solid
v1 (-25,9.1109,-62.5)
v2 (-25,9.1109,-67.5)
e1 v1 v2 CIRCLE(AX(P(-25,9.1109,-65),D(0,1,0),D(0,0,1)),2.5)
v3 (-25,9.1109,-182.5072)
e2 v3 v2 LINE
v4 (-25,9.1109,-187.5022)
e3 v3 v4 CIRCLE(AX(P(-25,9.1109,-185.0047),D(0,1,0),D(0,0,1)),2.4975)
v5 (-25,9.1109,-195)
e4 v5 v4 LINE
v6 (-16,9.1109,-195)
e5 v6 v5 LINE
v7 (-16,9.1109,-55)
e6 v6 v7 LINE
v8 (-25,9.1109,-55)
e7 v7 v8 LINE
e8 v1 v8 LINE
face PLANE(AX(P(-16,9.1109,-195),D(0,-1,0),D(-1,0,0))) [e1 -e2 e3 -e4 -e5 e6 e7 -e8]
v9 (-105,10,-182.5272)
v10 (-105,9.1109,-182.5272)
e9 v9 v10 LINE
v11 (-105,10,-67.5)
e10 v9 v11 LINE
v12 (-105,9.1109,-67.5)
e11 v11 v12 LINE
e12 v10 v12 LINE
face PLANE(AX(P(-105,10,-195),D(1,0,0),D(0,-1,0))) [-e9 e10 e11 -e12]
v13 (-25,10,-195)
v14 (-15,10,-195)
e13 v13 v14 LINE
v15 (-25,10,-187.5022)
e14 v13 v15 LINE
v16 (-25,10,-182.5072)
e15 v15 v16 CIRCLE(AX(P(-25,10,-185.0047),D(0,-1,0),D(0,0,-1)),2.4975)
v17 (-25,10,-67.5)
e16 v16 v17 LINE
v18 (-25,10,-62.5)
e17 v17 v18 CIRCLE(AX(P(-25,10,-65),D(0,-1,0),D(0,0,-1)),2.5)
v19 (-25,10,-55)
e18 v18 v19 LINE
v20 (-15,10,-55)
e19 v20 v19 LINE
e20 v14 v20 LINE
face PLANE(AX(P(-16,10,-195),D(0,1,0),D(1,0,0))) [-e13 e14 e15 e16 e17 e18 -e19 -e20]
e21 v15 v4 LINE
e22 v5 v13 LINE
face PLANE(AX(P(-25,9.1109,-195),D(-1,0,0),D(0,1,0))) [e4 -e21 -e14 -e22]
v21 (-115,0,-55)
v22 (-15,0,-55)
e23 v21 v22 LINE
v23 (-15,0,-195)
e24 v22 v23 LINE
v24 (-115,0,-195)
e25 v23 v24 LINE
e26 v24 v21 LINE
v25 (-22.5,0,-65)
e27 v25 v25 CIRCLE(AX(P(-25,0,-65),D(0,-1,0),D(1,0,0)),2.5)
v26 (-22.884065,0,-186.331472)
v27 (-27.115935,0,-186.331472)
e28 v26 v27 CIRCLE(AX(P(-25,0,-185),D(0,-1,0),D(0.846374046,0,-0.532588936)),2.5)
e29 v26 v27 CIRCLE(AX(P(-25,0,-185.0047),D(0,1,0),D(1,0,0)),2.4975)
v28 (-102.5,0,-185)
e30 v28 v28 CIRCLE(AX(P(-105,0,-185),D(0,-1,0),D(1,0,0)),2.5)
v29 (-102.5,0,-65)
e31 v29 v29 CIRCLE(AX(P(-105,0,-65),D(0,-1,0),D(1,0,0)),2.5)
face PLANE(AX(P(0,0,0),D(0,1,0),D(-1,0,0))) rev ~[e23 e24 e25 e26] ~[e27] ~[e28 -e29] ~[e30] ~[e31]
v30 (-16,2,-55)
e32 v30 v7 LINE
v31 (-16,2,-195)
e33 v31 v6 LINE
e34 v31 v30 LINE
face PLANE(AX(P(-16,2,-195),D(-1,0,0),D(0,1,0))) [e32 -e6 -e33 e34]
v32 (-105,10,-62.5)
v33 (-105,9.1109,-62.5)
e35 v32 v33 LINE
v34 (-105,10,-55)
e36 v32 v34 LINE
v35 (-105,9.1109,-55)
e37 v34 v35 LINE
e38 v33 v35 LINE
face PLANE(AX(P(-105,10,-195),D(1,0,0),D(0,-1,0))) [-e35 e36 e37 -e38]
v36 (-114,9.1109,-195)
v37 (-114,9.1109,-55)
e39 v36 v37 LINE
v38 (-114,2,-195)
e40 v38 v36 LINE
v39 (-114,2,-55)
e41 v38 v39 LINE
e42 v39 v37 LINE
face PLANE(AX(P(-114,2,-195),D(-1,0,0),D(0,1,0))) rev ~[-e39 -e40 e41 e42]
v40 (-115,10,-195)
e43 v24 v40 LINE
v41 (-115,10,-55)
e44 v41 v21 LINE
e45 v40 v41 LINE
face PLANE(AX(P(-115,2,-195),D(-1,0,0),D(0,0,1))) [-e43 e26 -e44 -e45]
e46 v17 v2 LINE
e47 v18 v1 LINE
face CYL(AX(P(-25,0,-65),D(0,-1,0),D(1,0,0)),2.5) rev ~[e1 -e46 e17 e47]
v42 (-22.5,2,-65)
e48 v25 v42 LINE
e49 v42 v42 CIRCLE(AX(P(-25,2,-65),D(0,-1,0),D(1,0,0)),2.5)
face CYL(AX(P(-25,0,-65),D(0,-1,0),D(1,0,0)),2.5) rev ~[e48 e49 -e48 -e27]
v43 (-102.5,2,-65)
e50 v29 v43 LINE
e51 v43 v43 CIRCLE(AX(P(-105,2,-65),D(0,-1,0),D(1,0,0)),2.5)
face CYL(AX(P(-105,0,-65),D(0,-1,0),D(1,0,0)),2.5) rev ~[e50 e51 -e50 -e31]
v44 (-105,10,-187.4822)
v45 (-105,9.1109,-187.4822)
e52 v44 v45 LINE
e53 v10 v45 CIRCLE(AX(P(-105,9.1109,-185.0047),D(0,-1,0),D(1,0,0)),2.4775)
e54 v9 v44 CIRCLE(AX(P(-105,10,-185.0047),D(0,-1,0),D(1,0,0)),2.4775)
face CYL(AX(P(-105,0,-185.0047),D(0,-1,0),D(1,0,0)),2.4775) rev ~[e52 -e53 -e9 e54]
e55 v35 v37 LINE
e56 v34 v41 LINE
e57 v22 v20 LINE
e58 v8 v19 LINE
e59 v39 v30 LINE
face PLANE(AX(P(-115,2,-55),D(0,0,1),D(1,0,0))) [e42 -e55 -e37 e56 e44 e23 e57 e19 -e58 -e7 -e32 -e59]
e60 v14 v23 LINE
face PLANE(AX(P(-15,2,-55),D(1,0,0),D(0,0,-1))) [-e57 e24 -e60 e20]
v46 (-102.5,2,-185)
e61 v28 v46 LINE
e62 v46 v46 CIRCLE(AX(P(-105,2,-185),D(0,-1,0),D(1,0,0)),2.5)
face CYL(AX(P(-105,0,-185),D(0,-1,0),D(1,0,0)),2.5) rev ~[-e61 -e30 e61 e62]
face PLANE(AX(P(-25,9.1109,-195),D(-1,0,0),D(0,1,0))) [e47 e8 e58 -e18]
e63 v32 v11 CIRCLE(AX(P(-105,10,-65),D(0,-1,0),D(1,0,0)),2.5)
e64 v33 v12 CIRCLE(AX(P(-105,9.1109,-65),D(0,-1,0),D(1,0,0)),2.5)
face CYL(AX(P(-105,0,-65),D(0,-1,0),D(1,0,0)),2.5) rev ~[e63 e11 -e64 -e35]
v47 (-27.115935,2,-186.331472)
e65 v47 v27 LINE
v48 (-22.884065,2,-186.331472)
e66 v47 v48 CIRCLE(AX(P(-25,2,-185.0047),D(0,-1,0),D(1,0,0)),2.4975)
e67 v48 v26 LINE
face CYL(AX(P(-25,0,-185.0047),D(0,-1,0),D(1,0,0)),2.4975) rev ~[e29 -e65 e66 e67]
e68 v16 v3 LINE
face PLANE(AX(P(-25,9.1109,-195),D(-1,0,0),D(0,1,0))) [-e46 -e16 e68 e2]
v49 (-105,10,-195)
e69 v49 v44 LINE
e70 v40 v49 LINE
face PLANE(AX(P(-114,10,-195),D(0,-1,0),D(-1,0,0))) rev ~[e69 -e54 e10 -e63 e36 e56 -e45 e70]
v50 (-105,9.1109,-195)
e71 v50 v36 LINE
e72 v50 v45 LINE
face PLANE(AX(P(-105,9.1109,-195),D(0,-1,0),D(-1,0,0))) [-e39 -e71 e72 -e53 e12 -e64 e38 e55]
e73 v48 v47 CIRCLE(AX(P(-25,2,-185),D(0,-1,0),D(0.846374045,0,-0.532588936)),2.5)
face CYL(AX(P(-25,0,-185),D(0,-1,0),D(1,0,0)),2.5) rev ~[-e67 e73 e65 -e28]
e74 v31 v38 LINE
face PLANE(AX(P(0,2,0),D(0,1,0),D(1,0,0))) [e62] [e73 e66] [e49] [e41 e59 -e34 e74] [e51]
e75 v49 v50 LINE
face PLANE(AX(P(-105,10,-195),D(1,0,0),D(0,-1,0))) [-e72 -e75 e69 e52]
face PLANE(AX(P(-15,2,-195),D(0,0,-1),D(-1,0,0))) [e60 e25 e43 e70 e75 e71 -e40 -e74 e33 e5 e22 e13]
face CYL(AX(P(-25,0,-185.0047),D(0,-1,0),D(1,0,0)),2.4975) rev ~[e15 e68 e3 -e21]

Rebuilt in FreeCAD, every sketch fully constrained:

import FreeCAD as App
import Part
import Sketcher


def add_polygon(sketch, points):
    """Adds a closed chain of lines whose ends are joined by coincident constraints."""
    first, n = sketch.GeometryCount, len(points)
    for a, b in zip(points, points[1:] + points[:1]):
        sketch.addGeometry(Part.LineSegment(App.Vector(*a, 0), App.Vector(*b, 0)), False)
    for i in range(n):
        sketch.addConstraint(Sketcher.Constraint("Coincident", first + i, 2, first + (i + 1) % n, 1))

doc = App.newDocument("Part")
body = doc.addObject("PartDesign::Body", "Body")

sketch1 = body.newObject("Sketcher::SketchObject", "Sketch")
sketch1.AttachmentSupport = (doc.getObject("XZ_Plane"), [""])
sketch1.MapMode = "FlatFace"
add_polygon(sketch1, [(-130, 0), (0, 0), (0, -230), (-130, -230)])
sketch1.addConstraint(Sketcher.Constraint("Horizontal", 0))
sketch1.addConstraint(Sketcher.Constraint("Vertical", 1))
sketch1.addConstraint(Sketcher.Constraint("Horizontal", 2))
sketch1.addConstraint(Sketcher.Constraint("Vertical", 3))
sketch1.addConstraint(Sketcher.Constraint("Coincident", 0, 2, -1, 1))
sketch1.addConstraint(Sketcher.Constraint("DistanceX", 0, 1, 0, 2, 130.0))
sketch1.addConstraint(Sketcher.Constraint("DistanceY", 1, 2, 1, 1, 230.0))
pad1 = body.newObject("PartDesign::Pad", "Pad")
pad1.Profile = sketch1
pad1.Length = 3
pad1.Reversed = True

sketch2 = body.newObject("Sketcher::SketchObject", "Sketch001")
sketch2.AttachmentSupport = (doc.getObject("XZ_Plane"), [""])
sketch2.MapMode = "FlatFace"
sketch2.AttachmentOffset = App.Placement(App.Vector(0, 0, -3), App.Rotation())
add_polygon(sketch2, [(0, 0), (0, -230), (-130, -230), (-130, 0)])
add_polygon(sketch2, [(-127, -3), (-127, -227), (-3, -227), (-3, -3)])
sketch2.addConstraint(Sketcher.Constraint("Vertical", 0))
sketch2.addConstraint(Sketcher.Constraint("Horizontal", 1))
sketch2.addConstraint(Sketcher.Constraint("Vertical", 2))
sketch2.addConstraint(Sketcher.Constraint("Horizontal", 3))
sketch2.addConstraint(Sketcher.Constraint("Vertical", 4))
sketch2.addConstraint(Sketcher.Constraint("Horizontal", 5))
sketch2.addConstraint(Sketcher.Constraint("Vertical", 6))
sketch2.addConstraint(Sketcher.Constraint("Horizontal", 7))
sketch2.addConstraint(Sketcher.Constraint("Coincident", 3, 2, -1, 1))
sketch2.addConstraint(Sketcher.Constraint("DistanceX", 5, 2, -1, 1, 3.0))
sketch2.addConstraint(Sketcher.Constraint("DistanceY", 6, 2, -1, 1, 3.0))
sketch2.addConstraint(Sketcher.Constraint("DistanceX", 1, 2, 4, 2, 3.0))
sketch2.addConstraint(Sketcher.Constraint("DistanceY", 1, 2, 4, 2, 3.0))
sketch2.addConstraint(Sketcher.Constraint("DistanceX", 1, 2, 1, 1, 130.0))
sketch2.addConstraint(Sketcher.Constraint("DistanceY", 0, 2, 0, 1, 230.0))
pad2 = body.newObject("PartDesign::Pad", "Pad001")
pad2.Profile = sketch2
pad2.Length = 60
pad2.Reversed = True

sketch3 = body.newObject("Sketcher::SketchObject", "Sketch002")
sketch3.AttachmentSupport = (doc.getObject("YZ_Plane"), [""])
sketch3.MapMode = "FlatFace"
sketch3.AttachmentOffset = App.Placement(App.Vector(0, 0, -127), App.Rotation())
add_polygon(sketch3, [(62, -3), (62, -227), (63, -227), (63, -3)])
sketch3.addConstraint(Sketcher.Constraint("Vertical", 0))
sketch3.addConstraint(Sketcher.Constraint("Horizontal", 1))
sketch3.addConstraint(Sketcher.Constraint("Vertical", 2))
sketch3.addConstraint(Sketcher.Constraint("Horizontal", 3))
sketch3.addConstraint(Sketcher.Constraint("DistanceX", 1, 1, 1, 2, 1.0))
sketch3.addConstraint(Sketcher.Constraint("DistanceY", 0, 2, 0, 1, 224.0))
sketch3.addConstraint(Sketcher.Constraint("DistanceX", -1, 1, 0, 2, 62.0))
sketch3.addConstraint(Sketcher.Constraint("DistanceY", 0, 2, -1, 1, 227.0))
pad3 = body.newObject("PartDesign::Pad", "Pad002")
pad3.Profile = sketch3
pad3.Length = 10

sketch4 = body.newObject("Sketcher::SketchObject", "Sketch003")
sketch4.AttachmentSupport = (doc.getObject("YZ_Plane"), [""])
sketch4.MapMode = "FlatFace"
sketch4.AttachmentOffset = App.Placement(App.Vector(0, 0, -117), App.Rotation())
add_polygon(sketch4, [(63, -3), (62, -3), (62, -13), (63, -13)])
add_polygon(sketch4, [(63, -217), (62, -217), (62, -227), (63, -227)])
sketch4.addConstraint(Sketcher.Constraint("Horizontal", 0))
sketch4.addConstraint(Sketcher.Constraint("Vertical", 1))
sketch4.addConstraint(Sketcher.Constraint("Horizontal", 2))
sketch4.addConstraint(Sketcher.Constraint("Vertical", 3))
sketch4.addConstraint(Sketcher.Constraint("Horizontal", 4))
sketch4.addConstraint(Sketcher.Constraint("Vertical", 5))
sketch4.addConstraint(Sketcher.Constraint("Horizontal", 6))
sketch4.addConstraint(Sketcher.Constraint("Vertical", 7))
sketch4.addConstraint(Sketcher.Constraint("Vertical", 1, 2, 4, 2))
sketch4.addConstraint(Sketcher.Constraint("Vertical", 3, 2, 6, 2))
sketch4.addConstraint(Sketcher.Constraint("Equal", 3, 5))
sketch4.addConstraint(Sketcher.Constraint("DistanceY", 1, 2, 1, 1, 10.0))
sketch4.addConstraint(Sketcher.Constraint("DistanceX", 0, 2, 0, 1, 1.0))
sketch4.addConstraint(Sketcher.Constraint("DistanceX", -1, 1, 0, 2, 62.0))
sketch4.addConstraint(Sketcher.Constraint("DistanceY", 0, 2, -1, 1, 3.0))
sketch4.addConstraint(Sketcher.Constraint("DistanceY", 4, 2, -1, 1, 217.0))
pad4 = body.newObject("PartDesign::Pad", "Pad003")
pad4.Profile = sketch4
pad4.Length = 115.25

sketch5 = body.newObject("Sketcher::SketchObject", "Sketch004")
sketch5.AttachmentSupport = (doc.getObject("XY_Plane"), [""])
sketch5.MapMode = "FlatFace"
sketch5.AttachmentOffset = App.Placement(App.Vector(0, 0, -217), App.Rotation())
add_polygon(sketch5, [(-13, 62), (-3, 62), (-3, 63), (-13, 63)])
sketch5.addConstraint(Sketcher.Constraint("Horizontal", 0))
sketch5.addConstraint(Sketcher.Constraint("Vertical", 1))
sketch5.addConstraint(Sketcher.Constraint("Horizontal", 2))
sketch5.addConstraint(Sketcher.Constraint("Vertical", 3))
sketch5.addConstraint(Sketcher.Constraint("DistanceX", 0, 1, 0, 2, 10.0))
sketch5.addConstraint(Sketcher.Constraint("DistanceY", 1, 1, 1, 2, 1.0))
sketch5.addConstraint(Sketcher.Constraint("DistanceX", 0, 2, -1, 1, 3.0))
sketch5.addConstraint(Sketcher.Constraint("DistanceY", -1, 1, 0, 2, 62.0))
pad5 = body.newObject("PartDesign::Pad", "Pad004")
pad5.Profile = sketch5
pad5.Length = 211.5

sketch6 = body.newObject("Sketcher::SketchObject", "Sketch005")
sketch6.AttachmentSupport = (doc.getObject("XZ_Plane"), [""])
sketch6.MapMode = "FlatFace"
sketch6.AttachmentOffset = App.Placement(App.Vector(0, 0, -63), App.Rotation())
sketch6.addGeometry(Part.Circle(App.Vector(-10, -220, 0), App.Vector(0, 0, 1), 1.5), False)
sketch6.addGeometry(Part.Circle(App.Vector(-120, -220, 0), App.Vector(0, 0, 1), 1.5), False)
sketch6.addGeometry(Part.Circle(App.Vector(-10, -10, 0), App.Vector(0, 0, 1), 1.5), False)
sketch6.addGeometry(Part.Circle(App.Vector(-120, -10, 0), App.Vector(0, 0, 1), 1.5), False)
sketch6.addConstraint(Sketcher.Constraint("Equal", 0, 1))
sketch6.addConstraint(Sketcher.Constraint("Equal", 1, 2))
sketch6.addConstraint(Sketcher.Constraint("Equal", 2, 3))
sketch6.addConstraint(Sketcher.Constraint("Horizontal", 0, 3, 1, 3))
sketch6.addConstraint(Sketcher.Constraint("Horizontal", 2, 3, 3, 3))
sketch6.addConstraint(Sketcher.Constraint("Vertical", 0, 3, 2, 3))
sketch6.addConstraint(Sketcher.Constraint("Vertical", 1, 3, 3, 3))
sketch6.addConstraint(Sketcher.Constraint("Diameter", 0, 3.0))
sketch6.addConstraint(Sketcher.Constraint("DistanceX", 0, 3, -1, 1, 10.0))
sketch6.addConstraint(Sketcher.Constraint("DistanceY", 2, 3, -1, 1, 10.0))
sketch6.addConstraint(Sketcher.Constraint("DistanceY", 0, 3, -1, 1, 220.0))
sketch6.addConstraint(Sketcher.Constraint("DistanceX", 1, 3, -1, 1, 120.0))
pocket1 = body.newObject("PartDesign::Pocket", "Pocket")
pocket1.Profile = sketch6
pocket1.Length = 211.5
pocket1.Reversed = True

sketch7 = body.newObject("Sketcher::SketchObject", "Sketch006")
sketch7.AttachmentSupport = (doc.getObject("XZ_Plane"), [""])
sketch7.MapMode = "FlatFace"
sketch7.addGeometry(Part.Circle(App.Vector(-25, -205, 0), App.Vector(0, 0, 1), 4), False)
sketch7.addGeometry(Part.Circle(App.Vector(-105, -205, 0), App.Vector(0, 0, 1), 4), False)
sketch7.addGeometry(Part.Circle(App.Vector(-25, -25, 0), App.Vector(0, 0, 1), 4), False)
sketch7.addGeometry(Part.Circle(App.Vector(-105, -25, 0), App.Vector(0, 0, 1), 4), False)
sketch7.addConstraint(Sketcher.Constraint("Equal", 0, 1))
sketch7.addConstraint(Sketcher.Constraint("Equal", 1, 2))
sketch7.addConstraint(Sketcher.Constraint("Equal", 2, 3))
sketch7.addConstraint(Sketcher.Constraint("Horizontal", 0, 3, 1, 3))
sketch7.addConstraint(Sketcher.Constraint("Horizontal", 2, 3, 3, 3))
sketch7.addConstraint(Sketcher.Constraint("Vertical", 0, 3, 2, 3))
sketch7.addConstraint(Sketcher.Constraint("Vertical", 1, 3, 3, 3))
sketch7.addConstraint(Sketcher.Constraint("Diameter", 0, 8.0))
sketch7.addConstraint(Sketcher.Constraint("DistanceX", 0, 3, -1, 1, 25.0))
sketch7.addConstraint(Sketcher.Constraint("DistanceY", 2, 3, -1, 1, 25.0))
sketch7.addConstraint(Sketcher.Constraint("DistanceY", 0, 3, -1, 1, 205.0))
sketch7.addConstraint(Sketcher.Constraint("DistanceX", 1, 3, -1, 1, 105.0))
pocket2 = body.newObject("PartDesign::Pocket", "Pocket001")
pocket2.Profile = sketch7
pocket2.Length = 10

sketch8 = body.newObject("Sketcher::SketchObject", "Sketch007")
sketch8.AttachmentSupport = (doc.getObject("XZ_Plane"), [""])
sketch8.MapMode = "FlatFace"
sketch8.addGeometry(Part.Circle(App.Vector(-35, -40, 0), App.Vector(0, 0, 1), 2.5), False)
sketch8.addGeometry(Part.Circle(App.Vector(-95, -40, 0), App.Vector(0, 0, 1), 2.5), False)
sketch8.addConstraint(Sketcher.Constraint("Equal", 0, 1))
sketch8.addConstraint(Sketcher.Constraint("Horizontal", 0, 3, 1, 3))
sketch8.addConstraint(Sketcher.Constraint("Diameter", 0, 5.0))
sketch8.addConstraint(Sketcher.Constraint("DistanceX", 0, 3, -1, 1, 35.0))
sketch8.addConstraint(Sketcher.Constraint("DistanceY", 0, 3, -1, 1, 40.0))
sketch8.addConstraint(Sketcher.Constraint("DistanceX", 1, 3, -1, 1, 95.0))
pocket3 = body.newObject("PartDesign::Pocket", "Pocket002")
pocket3.Profile = sketch8
pocket3.Length = 10

sketch9 = body.newObject("Sketcher::SketchObject", "Sketch008")
sketch9.AttachmentSupport = (doc.getObject("XZ_Plane"), [""])
sketch9.MapMode = "FlatFace"
sketch9.addGeometry(Part.Circle(App.Vector(-25, -185, 0), App.Vector(0, 0, 1), 2.5), False)
sketch9.addGeometry(Part.Circle(App.Vector(-25, -65, 0), App.Vector(0, 0, 1), 2.5), False)
sketch9.addGeometry(Part.Circle(App.Vector(-105, -65, 0), App.Vector(0, 0, 1), 2.5), False)
sketch9.addGeometry(Part.Circle(App.Vector(-105, -185, 0), App.Vector(0, 0, 1), 2.5), False)
sketch9.addConstraint(Sketcher.Constraint("Equal", 0, 1))
sketch9.addConstraint(Sketcher.Constraint("Equal", 1, 2))
sketch9.addConstraint(Sketcher.Constraint("Equal", 2, 3))
sketch9.addConstraint(Sketcher.Constraint("Horizontal", 1, 3, 2, 3))
sketch9.addConstraint(Sketcher.Constraint("Horizontal", 0, 3, 3, 3))
sketch9.addConstraint(Sketcher.Constraint("Vertical", 0, 3, 1, 3))
sketch9.addConstraint(Sketcher.Constraint("Vertical", 2, 3, 3, 3))
sketch9.addConstraint(Sketcher.Constraint("Diameter", 0, 5.0))
sketch9.addConstraint(Sketcher.Constraint("DistanceX", 0, 3, -1, 1, 25.0))
sketch9.addConstraint(Sketcher.Constraint("DistanceY", 0, 3, -1, 1, 185.0))
sketch9.addConstraint(Sketcher.Constraint("DistanceY", 1, 3, -1, 1, 65.0))
sketch9.addConstraint(Sketcher.Constraint("DistanceX", 2, 3, -1, 1, 105.0))
pocket4 = body.newObject("PartDesign::Pocket", "Pocket003")
pocket4.Profile = sketch9
pocket4.Length = 10

sketch10 = body.newObject("Sketcher::SketchObject", "Sketch009")
sketch10.AttachmentSupport = (doc.getObject("XZ_Plane"), [""])
sketch10.MapMode = "FlatFace"
sketch10.AttachmentOffset = App.Placement(App.Vector(0, 0, -63), App.Rotation())
add_polygon(sketch10, [(121, -309), (-230, -309), (-230, 23), (121, 23)])
sketch10.addConstraint(Sketcher.Constraint("Horizontal", 0))
sketch10.addConstraint(Sketcher.Constraint("Vertical", 1))
sketch10.addConstraint(Sketcher.Constraint("Horizontal", 2))
sketch10.addConstraint(Sketcher.Constraint("Vertical", 3))
sketch10.addConstraint(Sketcher.Constraint("DistanceX", 0, 2, 0, 1, 351.4053))
sketch10.addConstraint(Sketcher.Constraint("DistanceY", 1, 1, 1, 2, 331.2727))
sketch10.addConstraint(Sketcher.Constraint("DistanceX", 0, 2, -1, 1, 230.0178))
sketch10.addConstraint(Sketcher.Constraint("DistanceY", 0, 2, -1, 1, 308.5075))
pocket5 = body.newObject("PartDesign::Pocket", "Pocket004")
pocket5.Profile = sketch10
pocket5.Length = 61
pocket5.Reversed = True

sketch11 = body.newObject("Sketcher::SketchObject", "Sketch010")
sketch11.AttachmentSupport = (doc.getObject("XZ_Plane"), [""])
sketch11.MapMode = "FlatFace"
sketch11.AttachmentOffset = App.Placement(App.Vector(0, 0, -2), App.Rotation())
add_polygon(sketch11, [(33, -262), (-159, -262), (-159, 27), (33, 27)])
add_polygon(sketch11, [(-15, -195), (-15, -55), (-115, -55), (-115, -195)])
sketch11.addConstraint(Sketcher.Constraint("Horizontal", 0))
sketch11.addConstraint(Sketcher.Constraint("Vertical", 1))
sketch11.addConstraint(Sketcher.Constraint("Horizontal", 2))
sketch11.addConstraint(Sketcher.Constraint("Vertical", 3))
sketch11.addConstraint(Sketcher.Constraint("Vertical", 4))
sketch11.addConstraint(Sketcher.Constraint("Horizontal", 5))
sketch11.addConstraint(Sketcher.Constraint("Vertical", 6))
sketch11.addConstraint(Sketcher.Constraint("Horizontal", 7))
sketch11.addConstraint(Sketcher.Constraint("DistanceX", 5, 2, 5, 1, 100.0))
sketch11.addConstraint(Sketcher.Constraint("DistanceY", 4, 1, 4, 2, 140.0))
sketch11.addConstraint(Sketcher.Constraint("DistanceX", 4, 2, -1, 1, 15.0))
sketch11.addConstraint(Sketcher.Constraint("DistanceY", 4, 2, -1, 1, 55.0))
sketch11.addConstraint(Sketcher.Constraint("DistanceX", 0, 2, 0, 1, 192.2367))
sketch11.addConstraint(Sketcher.Constraint("DistanceY", 1, 1, 1, 2, 289.4067))
sketch11.addConstraint(Sketcher.Constraint("DistanceY", 0, 2, -1, 1, 262.268))
sketch11.addConstraint(Sketcher.Constraint("DistanceX", -1, 1, 2, 2, 33.433))
pocket6 = body.newObject("PartDesign::Pocket", "Pocket005")
pocket6.Profile = sketch11
pocket6.Length = 61
pocket6.Reversed = True

sketch12 = body.newObject("Sketcher::SketchObject", "Sketch011")
sketch12.AttachmentSupport = (doc.getObject("XY_Plane"), [""])
sketch12.MapMode = "FlatFace"
sketch12.AttachmentOffset = App.Placement(App.Vector(0, 0, -195), App.Rotation())
add_polygon(sketch12, [(-114, 2), (-115, 2), (-115, 10), (-105, 10), (-105, 9.1), (-114, 9.1)])
add_polygon(sketch12, [(-15, 2), (-16, 2), (-16, 9.1), (-25, 9.1), (-25, 10), (-15, 10)])
sketch12.addConstraint(Sketcher.Constraint("Horizontal", 0))
sketch12.addConstraint(Sketcher.Constraint("Vertical", 1))
sketch12.addConstraint(Sketcher.Constraint("Horizontal", 2))
sketch12.addConstraint(Sketcher.Constraint("Vertical", 3))
sketch12.addConstraint(Sketcher.Constraint("Horizontal", 4))
sketch12.addConstraint(Sketcher.Constraint("Vertical", 5))
sketch12.addConstraint(Sketcher.Constraint("Horizontal", 6))
sketch12.addConstraint(Sketcher.Constraint("Vertical", 7))
sketch12.addConstraint(Sketcher.Constraint("Horizontal", 8))
sketch12.addConstraint(Sketcher.Constraint("Vertical", 9))
sketch12.addConstraint(Sketcher.Constraint("Horizontal", 10))
sketch12.addConstraint(Sketcher.Constraint("Vertical", 11))
sketch12.addConstraint(Sketcher.Constraint("Horizontal", 5, 2, 6, 2))
sketch12.addConstraint(Sketcher.Constraint("Horizontal", 4, 2, 7, 2))
sketch12.addConstraint(Sketcher.Constraint("Horizontal", 2, 2, 9, 2))
sketch12.addConstraint(Sketcher.Constraint("Equal", 0, 6))
sketch12.addConstraint(Sketcher.Constraint("Equal", 4, 8))
sketch12.addConstraint(Sketcher.Constraint("DistanceX", 0, 2, 0, 1, 1.0))
sketch12.addConstraint(Sketcher.Constraint("DistanceX", 2, 1, 2, 2, 10.0))
sketch12.addConstraint(Sketcher.Constraint("DistanceY", -1, 1, 1, 2, 10.0))
sketch12.addConstraint(Sketcher.Constraint("DistanceY", 1, 1, 1, 2, 8.0))
sketch12.addConstraint(Sketcher.Constraint("DistanceX", 0, 2, -1, 1, 115.0))
sketch12.addConstraint(Sketcher.Constraint("DistanceX", 6, 2, -1, 1, 16.0))
sketch12.addConstraint(Sketcher.Constraint("DistanceY", 3, 2, 3, 1, 0.889))
pad6 = body.newObject("PartDesign::Pad", "Pad005")
pad6.Profile = sketch12
pad6.Length = 140

sketch13 = body.newObject("Sketcher::SketchObject", "Sketch012")
sketch13.AttachmentSupport = (doc.getObject("XZ_Plane"), [""])
sketch13.MapMode = "FlatFace"
sketch13.addGeometry(Part.Circle(App.Vector(-25, -65, 0), App.Vector(0, 0, 1), 2.5), False)
sketch13.addGeometry(Part.Circle(App.Vector(-25, -185, 0), App.Vector(0, 0, 1), 2.5), False)
sketch13.addGeometry(Part.Circle(App.Vector(-105, -185, 0), App.Vector(0, 0, 1), 2.5), False)
sketch13.addGeometry(Part.Circle(App.Vector(-105, -65, 0), App.Vector(0, 0, 1), 2.5), False)
sketch13.addConstraint(Sketcher.Constraint("Equal", 0, 3))
sketch13.addConstraint(Sketcher.Constraint("Horizontal", 1, 3, 2, 3))
sketch13.addConstraint(Sketcher.Constraint("Horizontal", 0, 3, 3, 3))
sketch13.addConstraint(Sketcher.Constraint("Vertical", 0, 3, 1, 3))
sketch13.addConstraint(Sketcher.Constraint("Vertical", 2, 3, 3, 3))
sketch13.addConstraint(Sketcher.Constraint("Diameter", 0, 5.0))
sketch13.addConstraint(Sketcher.Constraint("Diameter", 1, 4.995))
sketch13.addConstraint(Sketcher.Constraint("Diameter", 2, 4.955))
sketch13.addConstraint(Sketcher.Constraint("DistanceX", 0, 3, -1, 1, 25.0))
sketch13.addConstraint(Sketcher.Constraint("DistanceY", 0, 3, -1, 1, 65.0))
sketch13.addConstraint(Sketcher.Constraint("DistanceX", 2, 3, -1, 1, 105.0))
sketch13.addConstraint(Sketcher.Constraint("DistanceY", 1, 3, -1, 1, 185.0047))
pocket7 = body.newObject("PartDesign::Pocket", "Pocket006")
pocket7.Profile = sketch13
pocket7.Length = 140

doc.recompute()
